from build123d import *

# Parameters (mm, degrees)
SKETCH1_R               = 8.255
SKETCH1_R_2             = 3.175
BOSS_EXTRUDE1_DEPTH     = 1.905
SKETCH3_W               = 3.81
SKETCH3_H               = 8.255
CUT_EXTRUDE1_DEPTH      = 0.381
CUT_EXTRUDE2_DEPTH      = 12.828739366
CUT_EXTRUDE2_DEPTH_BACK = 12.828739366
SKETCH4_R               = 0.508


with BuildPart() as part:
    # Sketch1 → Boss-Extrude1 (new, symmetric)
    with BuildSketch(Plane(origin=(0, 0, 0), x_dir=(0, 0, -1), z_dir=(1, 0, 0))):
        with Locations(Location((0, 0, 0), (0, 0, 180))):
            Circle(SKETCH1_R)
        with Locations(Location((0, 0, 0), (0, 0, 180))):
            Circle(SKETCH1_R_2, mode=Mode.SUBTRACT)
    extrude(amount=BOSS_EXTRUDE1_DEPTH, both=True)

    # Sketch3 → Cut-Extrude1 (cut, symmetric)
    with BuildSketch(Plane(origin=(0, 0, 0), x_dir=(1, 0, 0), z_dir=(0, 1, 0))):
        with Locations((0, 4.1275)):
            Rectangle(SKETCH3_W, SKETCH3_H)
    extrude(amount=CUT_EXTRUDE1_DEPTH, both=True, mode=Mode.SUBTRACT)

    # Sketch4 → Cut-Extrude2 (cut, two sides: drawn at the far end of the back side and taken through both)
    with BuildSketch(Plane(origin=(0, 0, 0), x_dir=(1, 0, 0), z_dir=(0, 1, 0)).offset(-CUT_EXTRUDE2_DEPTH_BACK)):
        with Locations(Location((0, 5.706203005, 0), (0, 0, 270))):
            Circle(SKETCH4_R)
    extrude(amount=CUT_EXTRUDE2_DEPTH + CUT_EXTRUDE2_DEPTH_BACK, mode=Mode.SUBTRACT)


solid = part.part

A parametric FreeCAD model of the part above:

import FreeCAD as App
import Part
import Sketcher
Q = App.Units.Quantity


def add_polygon(sketch, points):
    """Adds a closed chain of lines whose ends are joined by coincident constraints."""
    first, n = sketch.GeometryCount, len(points)
    for a, b in zip(points, points[1:] + points[:1]):
        sketch.addGeometry(Part.LineSegment(App.Vector(*a, 0), App.Vector(*b, 0)), False)
    for i in range(n):
        sketch.addConstraint(Sketcher.Constraint("Coincident", first + i, 2, first + (i + 1) % n, 1))

doc = App.newDocument("Part")
body = doc.addObject("PartDesign::Body", "Body")

# Sketch on YZ plane
sketch1 = body.newObject("Sketcher::SketchObject", "Sketch")
sketch1.AttachmentSupport = (doc.getObject("YZ_Plane"), [""])
sketch1.MapMode = "FlatFace"
sketch1.addGeometry(Part.Circle(App.Vector(0, 0, 0), App.Vector(0, 0, 1), 8.3), False)
sketch1.addGeometry(Part.Circle(App.Vector(0, 0, 0), App.Vector(0, 0, 1), 3.2), False)
sketch1.addConstraint(Sketcher.Constraint("Coincident", 0, 3, -1, 1))
sketch1.addConstraint(Sketcher.Constraint("Coincident", 1, 3, -1, 1))
sketch1.addConstraint(Sketcher.Constraint("Diameter", 0, Q("0.65 in")))
sketch1.addConstraint(Sketcher.Constraint("Diameter", 1, Q("0.25 in")))
pad1 = body.newObject("PartDesign::Pad", "Pad")
pad1.Profile = sketch1
pad1.Length = Q("0.15 in")
pad1.Midplane = True

# Sketch on XZ plane
sketch2 = body.newObject("Sketcher::SketchObject", "Sketch001")
sketch2.AttachmentSupport = (doc.getObject("XZ_Plane"), [""])
sketch2.MapMode = "FlatFace"
add_polygon(sketch2, [(-1.9, -8.3), (-1.9, 0), (1.9, 0), (1.9, -8.3)])  # lines 0-3
sketch2.addConstraint(Sketcher.Constraint("Vertical", 0))
sketch2.addConstraint(Sketcher.Constraint("Horizontal", 1))
sketch2.addConstraint(Sketcher.Constraint("Vertical", 2))
sketch2.addConstraint(Sketcher.Constraint("Horizontal", 3))
sketch2.addConstraint(Sketcher.Constraint("Symmetric", 0, 2, 1, 2, -1, 1))
sketch2.addConstraint(Sketcher.Constraint("DistanceX", 1, 1, 1, 2, Q("0.15 in")))
sketch2.addConstraint(Sketcher.Constraint("DistanceY", 0, 1, 0, 2, Q("0.325 in")))
pocket1 = body.newObject("PartDesign::Pocket", "Pocket")
pocket1.Profile = sketch2
pocket1.Length = Q("0.03 in")
pocket1.Midplane = True

# Sketch on XZ plane
sketch3 = body.newObject("Sketcher::SketchObject", "Sketch002")
sketch3.AttachmentSupport = (doc.getObject("XZ_Plane"), [""])
sketch3.MapMode = "FlatFace"
sketch3.addGeometry(Part.Circle(App.Vector(0, -5.7, 0), App.Vector(0, 0, 1), 0.5), False)
sketch3.addConstraint(Sketcher.Constraint("PointOnObject", 0, 3, -2))
sketch3.addConstraint(Sketcher.Constraint("Diameter", 0, Q("0.04 in")))
sketch3.addConstraint(Sketcher.Constraint("DistanceY", 0, 3, -1, 1, 5.706203))
pocket2 = body.newObject("PartDesign::Pocket", "Pocket001")
pocket2.Profile = sketch3
pocket2.Type = "ThroughAll"
pocket2.Midplane = True

doc.recompute()
